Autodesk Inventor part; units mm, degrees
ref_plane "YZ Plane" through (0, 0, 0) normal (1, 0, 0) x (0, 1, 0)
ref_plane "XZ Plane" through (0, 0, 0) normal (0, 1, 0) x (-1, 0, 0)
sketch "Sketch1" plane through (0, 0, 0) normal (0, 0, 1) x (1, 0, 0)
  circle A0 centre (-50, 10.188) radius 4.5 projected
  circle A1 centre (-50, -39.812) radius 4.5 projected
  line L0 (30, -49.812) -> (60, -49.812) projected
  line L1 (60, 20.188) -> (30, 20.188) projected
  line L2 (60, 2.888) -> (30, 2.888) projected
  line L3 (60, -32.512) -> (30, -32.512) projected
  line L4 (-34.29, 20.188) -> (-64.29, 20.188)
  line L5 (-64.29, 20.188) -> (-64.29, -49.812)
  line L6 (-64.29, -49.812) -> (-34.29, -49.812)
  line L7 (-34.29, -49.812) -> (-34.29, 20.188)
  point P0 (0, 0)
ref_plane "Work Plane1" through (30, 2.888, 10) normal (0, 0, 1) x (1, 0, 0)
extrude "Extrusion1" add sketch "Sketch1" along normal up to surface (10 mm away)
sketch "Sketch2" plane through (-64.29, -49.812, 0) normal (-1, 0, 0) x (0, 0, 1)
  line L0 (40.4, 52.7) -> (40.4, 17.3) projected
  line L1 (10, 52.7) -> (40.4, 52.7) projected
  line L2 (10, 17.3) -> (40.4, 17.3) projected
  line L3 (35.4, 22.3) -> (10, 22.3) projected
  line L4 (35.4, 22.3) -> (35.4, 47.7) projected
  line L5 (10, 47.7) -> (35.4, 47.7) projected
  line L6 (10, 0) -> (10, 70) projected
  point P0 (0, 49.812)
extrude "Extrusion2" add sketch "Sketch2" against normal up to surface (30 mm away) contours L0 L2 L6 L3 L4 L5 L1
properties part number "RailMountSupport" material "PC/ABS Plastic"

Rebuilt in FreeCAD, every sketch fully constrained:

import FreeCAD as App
import Part
import Sketcher

V = App.Vector
Q = App.Units.Quantity


def add_polygon(sketch, points):
    """Adds a closed chain of lines whose ends are joined by coincident constraints."""
    first, n = sketch.GeometryCount, len(points)
    for a, b in zip(points, points[1:] + points[:1]):
        sketch.addGeometry(Part.LineSegment(App.Vector(*a, 0), App.Vector(*b, 0)), False)
    for i in range(n):
        sketch.addConstraint(Sketcher.Constraint("Coincident", first + i, 2, first + (i + 1) % n, 1))

doc = App.newDocument("Part")
body = doc.addObject("PartDesign::Body", "Body")

# Sketch on XY plane
sketch1 = body.newObject("Sketcher::SketchObject", "Sketch")
sketch1.AttachmentSupport = (doc.getObject("XY_Plane"), [""])
sketch1.MapMode = "FlatFace"
add_polygon(sketch1, [(-34.3, -49.8), (-34.3, 20.2), (-64.3, 20.2), (-64.3, -49.8)])  # lines 0-3
sketch1.addGeometry(Part.Circle(V(-50, -39.8, 0), V(0, 0, 1), 4.5), False)  # 4
sketch1.addGeometry(Part.Circle(V(-50, 10.2, 0), V(0, 0, 1), 4.5), False)  # 5
sketch1.addConstraint([
    Sketcher.Constraint("Vertical", 0),
    Sketcher.Constraint("Horizontal", 1),
    Sketcher.Constraint("Vertical", 2),
    Sketcher.Constraint("Horizontal", 3),
    Sketcher.Constraint("Equal", 4, 5),
    Sketcher.Constraint("Vertical", 4, 3, 5, 3),
    Sketcher.Constraint("Diameter", 4, Q("9 mm")),
    Sketcher.Constraint("DistanceX", 1, 2, 1, 1, Q("30 mm")),
    Sketcher.Constraint("DistanceY", 0, 1, 0, 2, Q("70 mm")),
    Sketcher.Constraint("DistanceX", 4, 3, -1, 1, Q("50 mm")),
    Sketcher.Constraint("DistanceY", 4, 3, 5, 3, Q("50 mm")),
    Sketcher.Constraint("DistanceY", 5, 3, 0, 2, Q("10 mm")),
    Sketcher.Constraint("DistanceX", 0, 2, -1, 1, Q("34.29 mm")),
    Sketcher.Constraint("DistanceY", 4, 3, -1, 1, Q("39.812 mm")),
])
pad1 = body.newObject("PartDesign::Pad", "Pad")
pad1.Profile = sketch1
pad1.Length = 10

# Sketch on YZ plane
sketch2 = body.newObject("Sketcher::SketchObject", "Sketch001")
sketch2.AttachmentSupport = (doc.getObject("YZ_Plane"), [""])
sketch2.MapMode = "FlatFace"
sketch2.AttachmentOffset = App.Placement(V(0, 0, -64.29), App.Rotation())
add_polygon(sketch2, [(-33, 40), (3, 40), (3, 10), (-2, 10), (-2, 35), (-28, 35), (-28, 10), (-33, 10)])  # lines 0-7
sketch2.addConstraint([
    Sketcher.Constraint("Horizontal", 0),
    Sketcher.Constraint("Vertical", 1),
    Sketcher.Constraint("Horizontal", 2),
    Sketcher.Constraint("Vertical", 3),
    Sketcher.Constraint("Horizontal", 4),
    Sketcher.Constraint("Vertical", 5),
    Sketcher.Constraint("Horizontal", 6),
    Sketcher.Constraint("Vertical", 7),
    Sketcher.Constraint("Horizontal", 2, 2, 5, 2),
    Sketcher.Constraint("Equal", 2, 6),
    Sketcher.Constraint("Equal", 4, 3),
    Sketcher.Constraint("DistanceX", 2, 2, 2, 1, Q("5 mm")),
    Sketcher.Constraint("DistanceX", 0, 1, 0, 2, Q("35.4 mm")),
    Sketcher.Constraint("DistanceY", 1, 2, 1, 1, Q("30.4 mm")),
    Sketcher.Constraint("DistanceY", -1, 1, 1, 2, Q("10 mm")),
    Sketcher.Constraint("DistanceX", -1, 1, 0, 2, Q("2.888 mm")),
])
pad2 = body.newObject("PartDesign::Pad", "Pad001")
pad2.Profile = sketch2
pad2.Length = 30

doc.recompute()
